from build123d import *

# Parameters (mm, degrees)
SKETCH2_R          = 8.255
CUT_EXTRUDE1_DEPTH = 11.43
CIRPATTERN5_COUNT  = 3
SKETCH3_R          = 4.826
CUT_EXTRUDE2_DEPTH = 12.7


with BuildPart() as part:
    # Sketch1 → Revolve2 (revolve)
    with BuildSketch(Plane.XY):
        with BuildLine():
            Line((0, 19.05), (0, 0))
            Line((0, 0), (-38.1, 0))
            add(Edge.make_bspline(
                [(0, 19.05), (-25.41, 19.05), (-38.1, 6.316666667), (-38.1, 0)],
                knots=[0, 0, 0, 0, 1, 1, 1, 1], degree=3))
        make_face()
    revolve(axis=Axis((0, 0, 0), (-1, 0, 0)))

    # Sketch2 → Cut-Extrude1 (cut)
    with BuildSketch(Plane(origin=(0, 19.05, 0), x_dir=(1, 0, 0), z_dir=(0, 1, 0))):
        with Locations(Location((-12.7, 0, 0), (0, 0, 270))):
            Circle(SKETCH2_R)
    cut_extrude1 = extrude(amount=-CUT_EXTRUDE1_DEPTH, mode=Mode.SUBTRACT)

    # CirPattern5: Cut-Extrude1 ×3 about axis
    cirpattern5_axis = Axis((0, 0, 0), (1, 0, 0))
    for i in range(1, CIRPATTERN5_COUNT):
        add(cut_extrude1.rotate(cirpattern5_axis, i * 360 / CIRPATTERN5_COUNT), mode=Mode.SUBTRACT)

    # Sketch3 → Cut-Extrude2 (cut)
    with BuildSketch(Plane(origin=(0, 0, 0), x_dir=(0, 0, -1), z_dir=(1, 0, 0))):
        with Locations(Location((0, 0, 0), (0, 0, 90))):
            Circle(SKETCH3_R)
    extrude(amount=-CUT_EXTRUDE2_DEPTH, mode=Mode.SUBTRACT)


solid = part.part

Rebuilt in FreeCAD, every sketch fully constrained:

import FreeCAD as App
import Part
import Sketcher
from FreeCAD import Vector
Q = App.Units.Quantity

doc = App.newDocument("Part")
body = doc.addObject("PartDesign::Body", "Body")

sketch1 = doc.addObject("Sketcher::SketchObject", "Sketch")
body.addObject(sketch1)
sketch1.AttachmentSupport = (doc.XY_Plane, [""])
sketch1.MapMode = "FlatFace"
sketch1.addGeometry(Part.LineSegment(Vector(0, 0, 0), Vector(0, 19.05, 0)), False)
sketch1.addGeometry(Part.BSplineCurve([Vector(0, 19.05, 0), Vector(-25.41, 19.05, 0), Vector(-38.1, 6.316667, 0), Vector(-38.1, 0, 0)], [4, 4], [0, 1], False, 3, [1, 1, 1, 1], False), False)
sketch1.addGeometry(Part.LineSegment(Vector(-38.1, 0, 0), Vector(0, 0, 0)), False)
sketch1.addConstraint(Sketcher.Constraint("Block", 1))
sketch1.addConstraint(Sketcher.Constraint("Coincident", 0, 2, 1, 1))
sketch1.addConstraint(Sketcher.Constraint("Coincident", 1, 2, 2, 1))
sketch1.addConstraint(Sketcher.Constraint("Coincident", 2, 2, 0, 1))
sketch1.addConstraint(Sketcher.Constraint("Vertical", 0))
sketch1.addConstraint(Sketcher.Constraint("Horizontal", 2))
revolution = doc.addObject("PartDesign::Revolution", "Revolution")
body.addObject(revolution)
revolution.Profile = sketch1
revolution.ReferenceAxis = (sketch1, ["H_Axis"])
revolution.Angle = 360

sketch2 = doc.addObject("Sketcher::SketchObject", "Sketch001")
body.addObject(sketch2)
sketch2.AttachmentSupport = (doc.XZ_Plane, [""])
sketch2.MapMode = "FlatFace"
sketch2.AttachmentOffset = App.Placement(Vector(0, 0, -0.75 * 25.4), App.Rotation())
sketch2.addGeometry(Part.Circle(Vector(-13, 0, 0), Vector(0, 0, 1), 8), False)
sketch2.addConstraint(Sketcher.Constraint("PointOnObject", 0, 3, -1))
sketch2.addConstraint(Sketcher.Constraint("Diameter", 0, Q("0.65 in")))
sketch2.addConstraint(Sketcher.Constraint("DistanceX", 0, 3, -1, 1, Q("0.5 in")))
pocket1 = doc.addObject("PartDesign::Pocket", "Pocket")
body.addObject(pocket1)
pocket1.Profile = sketch2
pocket1.Length = Q("0.45 in")
pocket1.Reversed = True
doc.recompute()

polarpattern = doc.addObject("PartDesign::PolarPattern", "PolarPattern")
body.addObject(polarpattern)
polarpattern.Originals = [pocket1]
polarpattern.Axis = (doc.X_Axis, [""])
polarpattern.Angle = 360
polarpattern.Occurrences = 3
body.Tip = polarpattern

sketch3 = doc.addObject("Sketcher::SketchObject", "Sketch002")
body.addObject(sketch3)
sketch3.AttachmentSupport = (doc.YZ_Plane, [""])
sketch3.MapMode = "FlatFace"
sketch3.addGeometry(Part.Circle(Vector(0, 0, 0), Vector(0, 0, 1), 4.8), False)
sketch3.addConstraint(Sketcher.Constraint("Coincident", 0, 3, -1, 1))
sketch3.addConstraint(Sketcher.Constraint("Diameter", 0, Q("0.38 in")))
pocket2 = doc.addObject("PartDesign::Pocket", "Pocket001")
body.addObject(pocket2)
pocket2.Profile = sketch3
pocket2.Length = Q("0.5 in")

doc.recompute()
